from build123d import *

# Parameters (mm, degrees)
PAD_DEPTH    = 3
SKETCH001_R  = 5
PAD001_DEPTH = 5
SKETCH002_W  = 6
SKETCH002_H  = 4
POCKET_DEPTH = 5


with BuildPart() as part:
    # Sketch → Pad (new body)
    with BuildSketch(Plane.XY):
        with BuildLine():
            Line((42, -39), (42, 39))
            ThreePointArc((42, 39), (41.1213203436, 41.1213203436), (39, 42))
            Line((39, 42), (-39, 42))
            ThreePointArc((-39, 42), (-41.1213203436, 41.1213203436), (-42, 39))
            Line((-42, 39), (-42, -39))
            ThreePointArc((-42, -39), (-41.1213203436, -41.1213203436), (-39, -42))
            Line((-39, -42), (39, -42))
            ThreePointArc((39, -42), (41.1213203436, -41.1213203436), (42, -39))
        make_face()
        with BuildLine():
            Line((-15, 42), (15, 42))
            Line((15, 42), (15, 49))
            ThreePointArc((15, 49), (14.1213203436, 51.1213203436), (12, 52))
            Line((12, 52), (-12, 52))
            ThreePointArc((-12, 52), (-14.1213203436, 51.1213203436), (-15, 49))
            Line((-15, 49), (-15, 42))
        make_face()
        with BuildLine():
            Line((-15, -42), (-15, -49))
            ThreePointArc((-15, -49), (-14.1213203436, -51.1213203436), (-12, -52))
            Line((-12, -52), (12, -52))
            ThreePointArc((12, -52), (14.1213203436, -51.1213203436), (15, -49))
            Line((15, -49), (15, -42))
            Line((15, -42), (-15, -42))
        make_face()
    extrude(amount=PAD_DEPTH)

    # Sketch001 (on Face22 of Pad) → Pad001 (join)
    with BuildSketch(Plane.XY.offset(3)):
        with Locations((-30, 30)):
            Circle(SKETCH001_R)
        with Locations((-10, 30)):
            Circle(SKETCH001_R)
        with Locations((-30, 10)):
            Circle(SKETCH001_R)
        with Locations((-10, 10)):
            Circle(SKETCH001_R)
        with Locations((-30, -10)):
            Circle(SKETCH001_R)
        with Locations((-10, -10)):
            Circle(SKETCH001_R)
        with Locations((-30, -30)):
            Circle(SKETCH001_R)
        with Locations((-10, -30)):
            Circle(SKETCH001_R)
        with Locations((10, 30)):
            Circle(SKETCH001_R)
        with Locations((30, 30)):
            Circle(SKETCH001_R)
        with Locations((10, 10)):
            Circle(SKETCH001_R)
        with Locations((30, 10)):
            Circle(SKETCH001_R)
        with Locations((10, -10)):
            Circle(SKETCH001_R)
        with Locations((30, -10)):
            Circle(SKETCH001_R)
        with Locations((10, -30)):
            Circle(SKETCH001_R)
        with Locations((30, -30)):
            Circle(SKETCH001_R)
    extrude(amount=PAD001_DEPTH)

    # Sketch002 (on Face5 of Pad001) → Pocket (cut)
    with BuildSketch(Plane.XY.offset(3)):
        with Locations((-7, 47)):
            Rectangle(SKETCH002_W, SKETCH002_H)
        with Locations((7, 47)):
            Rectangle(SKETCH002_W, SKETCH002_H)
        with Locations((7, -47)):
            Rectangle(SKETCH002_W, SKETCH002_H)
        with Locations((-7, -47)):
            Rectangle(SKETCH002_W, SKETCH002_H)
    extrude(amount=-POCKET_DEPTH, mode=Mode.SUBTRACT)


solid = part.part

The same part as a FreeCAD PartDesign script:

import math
import FreeCAD as App
import Part
import Sketcher
from FreeCAD import Vector
Q = App.Units.Quantity


def add_polygon(sketch, points):
    """Adds a closed chain of lines whose ends are joined by coincident constraints."""
    first, n = sketch.GeometryCount, len(points)
    for a, b in zip(points, points[1:] + points[:1]):
        sketch.addGeometry(Part.LineSegment(App.Vector(*a, 0), App.Vector(*b, 0)), False)
    for i in range(n):
        sketch.addConstraint(Sketcher.Constraint("Coincident", first + i, 2, first + (i + 1) % n, 1))

doc = App.newDocument("Part")
params = doc.addObject("Spreadsheet::Sheet", "Params")
for row, (alias, value) in enumerate([
    ("sketch1_radius", "3 mm"),
    ("sketch1_width", "24 mm"),
    ("sketch1_height", "78 mm"),
    ("sketch1_height2", "7 mm"),
    ("pad1_length", "3 mm"),
    ("sketch2_diameter", "10 mm"),
    ("pad2_length", "5 mm"),
    ("sketch3_width", "6 mm"),
    ("sketch3_height", "4 mm"),
    ("pocket1_length", "5 mm"),
], start=1):
    params.set(f"A{row}", alias)
    params.set(f"B{row}", "=" + value)
    params.setAlias(f"B{row}", alias)

body = doc.addObject("PartDesign::Body", "Body")

# Sketch on XY plane
sketch1 = body.newObject("Sketcher::SketchObject", "Sketch")
sketch1.AttachmentSupport = (doc.getObject("XY_Plane"), [""])
sketch1.MapMode = "FlatFace"
sketch1.addGeometry([
    Part.LineSegment(Vector(42, -39, 0), Vector(42, 39, 0)),  # 0
    Part.ArcOfCircle(Part.Circle(Vector(39, 39, 0), Vector(0, 0, 1), 3), math.radians(0), math.radians(90)),  # 1
    Part.LineSegment(Vector(39, 42, 0), Vector(15, 42, 0)),  # 2
    Part.LineSegment(Vector(15, 42, 0), Vector(15, 49, 0)),  # 3
    Part.ArcOfCircle(Part.Circle(Vector(12, 49, 0), Vector(0, 0, 1), 3), math.radians(0), math.radians(90)),  # 4
    Part.LineSegment(Vector(12, 52, 0), Vector(-12, 52, 0)),  # 5
    Part.ArcOfCircle(Part.Circle(Vector(-12, 49, 0), Vector(0, 0, 1), 3), math.radians(90), math.radians(180)),  # 6
    Part.LineSegment(Vector(-15, 49, 0), Vector(-15, 42, 0)),  # 7
    Part.LineSegment(Vector(-15, 42, 0), Vector(-39, 42, 0)),  # 8
    Part.ArcOfCircle(Part.Circle(Vector(-39, 39, 0), Vector(0, 0, 1), 3), math.radians(90), math.radians(180)),  # 9
    Part.LineSegment(Vector(-42, 39, 0), Vector(-42, -39, 0)),  # 10
    Part.ArcOfCircle(Part.Circle(Vector(-39, -39, 0), Vector(0, 0, 1), 3), math.radians(180), math.radians(270)),  # 11
    Part.LineSegment(Vector(-39, -42, 0), Vector(-15, -42, 0)),  # 12
    Part.LineSegment(Vector(-15, -42, 0), Vector(-15, -49, 0)),  # 13
    Part.ArcOfCircle(Part.Circle(Vector(-12, -49, 0), Vector(0, 0, 1), 3), math.radians(180), math.radians(270)),  # 14
    Part.LineSegment(Vector(-12, -52, 0), Vector(12, -52, 0)),  # 15
    Part.ArcOfCircle(Part.Circle(Vector(12, -49, 0), Vector(0, 0, 1), 3), math.radians(-90), math.radians(0)),  # 16
    Part.LineSegment(Vector(15, -49, 0), Vector(15, -42, 0)),  # 17
    Part.LineSegment(Vector(15, -42, 0), Vector(39, -42, 0)),  # 18
    Part.ArcOfCircle(Part.Circle(Vector(39, -39, 0), Vector(0, 0, 1), 3), math.radians(-90), math.radians(0)),  # 19
], False)
sketch1.addConstraint([
    Sketcher.Constraint("Tangent", 0, 2, 1, 1),
    Sketcher.Constraint("Tangent", 1, 2, 2, 1),
    Sketcher.Constraint("Coincident", 2, 2, 3, 1),
    Sketcher.Constraint("Tangent", 3, 2, 4, 1),
    Sketcher.Constraint("Tangent", 4, 2, 5, 1),
    Sketcher.Constraint("Tangent", 5, 2, 6, 1),
    Sketcher.Constraint("Tangent", 6, 2, 7, 1),
    Sketcher.Constraint("Coincident", 7, 2, 8, 1),
    Sketcher.Constraint("Tangent", 8, 2, 9, 1),
    Sketcher.Constraint("Tangent", 9, 2, 10, 1),
    Sketcher.Constraint("Tangent", 10, 2, 11, 1),
    Sketcher.Constraint("Tangent", 11, 2, 12, 1),
    Sketcher.Constraint("Coincident", 12, 2, 13, 1),
    Sketcher.Constraint("Tangent", 13, 2, 14, 1),
    Sketcher.Constraint("Tangent", 14, 2, 15, 1),
    Sketcher.Constraint("Tangent", 15, 2, 16, 1),
    Sketcher.Constraint("Tangent", 16, 2, 17, 1),
    Sketcher.Constraint("Coincident", 17, 2, 18, 1),
    Sketcher.Constraint("Tangent", 18, 2, 19, 1),
    Sketcher.Constraint("Tangent", 19, 2, 0, 1),
    Sketcher.Constraint("Vertical", 0),
    Sketcher.Constraint("Horizontal", 2),
    Sketcher.Constraint("Vertical", 3),
    Sketcher.Constraint("Horizontal", 5),
    Sketcher.Constraint("Vertical", 7),
    Sketcher.Constraint("Horizontal", 8),
    Sketcher.Constraint("Vertical", 10),
    Sketcher.Constraint("Horizontal", 12),
    Sketcher.Constraint("Vertical", 13),
    Sketcher.Constraint("Horizontal", 15),
    Sketcher.Constraint("Vertical", 17),
    Sketcher.Constraint("Horizontal", 18),
    Sketcher.Constraint("Equal", 1, 4),
    Sketcher.Constraint("Equal", 4, 6),
    Sketcher.Constraint("Equal", 6, 9),
    Sketcher.Constraint("Equal", 9, 11),
    Sketcher.Constraint("Equal", 11, 14),
    Sketcher.Constraint("Equal", 14, 16),
    Sketcher.Constraint("Equal", 16, 19),
    Sketcher.Constraint("Symmetric", 1, 3, 11, 3, -1, 1),
    Sketcher.Constraint("Symmetric", 4, 3, 14, 3, -1, 1),
    Sketcher.Constraint("Symmetric", 7, 2, 17, 2, -1, 1),
    Sketcher.Constraint("Symmetric", 2, 2, 7, 2, -2),
    Sketcher.Constraint("Equal", 2, 5),
    Sketcher.Constraint("Radius", 1, Q("3 mm")),
    Sketcher.Constraint("DistanceX", 2, 2, 2, 1, Q("24 mm")),
    Sketcher.Constraint("DistanceY", 0, 1, 0, 2, Q("78 mm")),
    Sketcher.Constraint("DistanceY", 3, 1, 3, 2, Q("7 mm")),
])
sketch1.setExpression("Constraints[44]", "Params.sketch1_radius")
sketch1.setExpression("Constraints[45]", "Params.sketch1_width")
sketch1.setExpression("Constraints[46]", "Params.sketch1_height")
sketch1.setExpression("Constraints[47]", "Params.sketch1_height2")
pad1 = body.newObject("PartDesign::Pad", "Pad")
pad1.Profile = sketch1
pad1.setExpression("Length", "Params.pad1_length")

# Sketch on XY plane
sketch2 = body.newObject("Sketcher::SketchObject", "Sketch001")
sketch2.AttachmentSupport = (doc.getObject("XY_Plane"), [""])
sketch2.MapMode = "FlatFace"
sketch2.AttachmentOffset = App.Placement(Vector(0, 0, 3), App.Rotation())
sketch2.addGeometry([
    Part.Circle(Vector(-30, 30, 0), Vector(0, 0, 1), 5),  # 0
    Part.Circle(Vector(-10, 30, 0), Vector(0, 0, 1), 5),  # 1
    Part.Circle(Vector(-30, 10, 0), Vector(0, 0, 1), 5),  # 2
    Part.Circle(Vector(-10, 10, 0), Vector(0, 0, 1), 5),  # 3
    Part.Circle(Vector(-30, -10, 0), Vector(0, 0, 1), 5),  # 4
    Part.Circle(Vector(-10, -10, 0), Vector(0, 0, 1), 5),  # 5
    Part.Circle(Vector(-30, -30, 0), Vector(0, 0, 1), 5),  # 6
    Part.Circle(Vector(-10, -30, 0), Vector(0, 0, 1), 5),  # 7
    Part.Circle(Vector(10, 30, 0), Vector(0, 0, 1), 5),  # 8
    Part.Circle(Vector(30, 30, 0), Vector(0, 0, 1), 5),  # 9
    Part.Circle(Vector(10, 10, 0), Vector(0, 0, 1), 5),  # 10
    Part.Circle(Vector(30, 10, 0), Vector(0, 0, 1), 5),  # 11
    Part.Circle(Vector(10, -10, 0), Vector(0, 0, 1), 5),  # 12
    Part.Circle(Vector(30, -10, 0), Vector(0, 0, 1), 5),  # 13
    Part.Circle(Vector(10, -30, 0), Vector(0, 0, 1), 5),  # 14
    Part.Circle(Vector(30, -30, 0), Vector(0, 0, 1), 5),  # 15
], False)
sketch2.addConstraint([
    Sketcher.Constraint("Equal", 0, 1),
    Sketcher.Constraint("Equal", 1, 2),
    Sketcher.Constraint("Equal", 2, 3),
    Sketcher.Constraint("Equal", 3, 4),
    Sketcher.Constraint("Equal", 4, 5),
    Sketcher.Constraint("Equal", 5, 6),
    Sketcher.Constraint("Equal", 6, 7),
    Sketcher.Constraint("Equal", 7, 8),
    Sketcher.Constraint("Equal", 8, 9),
    Sketcher.Constraint("Equal", 9, 10),
    Sketcher.Constraint("Equal", 10, 11),
    Sketcher.Constraint("Equal", 11, 12),
    Sketcher.Constraint("Equal", 12, 13),
    Sketcher.Constraint("Equal", 13, 14),
    Sketcher.Constraint("Equal", 14, 15),
    Sketcher.Constraint("Symmetric", 7, 3, 8, 3, -1, 1),
    Sketcher.Constraint("Symmetric", 6, 3, 9, 3, -1, 1),
    Sketcher.Constraint("Symmetric", 5, 3, 10, 3, -1, 1),
    Sketcher.Constraint("Symmetric", 4, 3, 11, 3, -1, 1),
    Sketcher.Constraint("Symmetric", 3, 3, 12, 3, -1, 1),
    Sketcher.Constraint("Symmetric", 2, 3, 13, 3, -1, 1),
    Sketcher.Constraint("Symmetric", 1, 3, 14, 3, -1, 1),
    Sketcher.Constraint("Symmetric", 0, 3, 15, 3, -1, 1),
    Sketcher.Constraint("Symmetric", 1, 3, 8, 3, -2),
    Sketcher.Constraint("Symmetric", 0, 3, 9, 3, -2),
    Sketcher.Constraint("Symmetric", 3, 3, 10, 3, -2),
    Sketcher.Constraint("Symmetric", 2, 3, 11, 3, -2),
    Sketcher.Constraint("Horizontal", 0, 3, 1, 3),
    Sketcher.Constraint("Horizontal", 2, 3, 3, 3),
    Sketcher.Constraint("Vertical", 0, 3, 2, 3),
    Sketcher.Constraint("Vertical", 1, 3, 3, 3),
    Sketcher.Constraint("Diameter", 0, Q("10 mm")),
    Sketcher.Constraint("DistanceX", 0, 3, -1, 1, Q("30 mm")),
    Sketcher.Constraint("DistanceY", -1, 1, 0, 3, Q("30 mm")),
    Sketcher.Constraint("DistanceX", 1, 3, -1, 1, Q("10 mm")),
    Sketcher.Constraint("DistanceY", -1, 1, 2, 3, Q("10 mm")),
])
sketch2.setExpression("Constraints[31]", "Params.sketch2_diameter")
pad2 = body.newObject("PartDesign::Pad", "Pad001")
pad2.Profile = sketch2
pad2.setExpression("Length", "Params.pad2_length")

# Sketch on XY plane
sketch3 = body.newObject("Sketcher::SketchObject", "Sketch002")
sketch3.AttachmentSupport = (doc.getObject("XY_Plane"), [""])
sketch3.MapMode = "FlatFace"
sketch3.AttachmentOffset = App.Placement(Vector(0, 0, 3), App.Rotation())
add_polygon(sketch3, [(-10, 49), (-10, 45), (-4, 45), (-4, 49)])  # lines 0-3
add_polygon(sketch3, [(4, 49), (4, 45), (10, 45), (10, 49)])  # lines 4-7
add_polygon(sketch3, [(4, -45), (4, -49), (10, -49), (10, -45)])  # lines 8-11
add_polygon(sketch3, [(-10, -45), (-10, -49), (-4, -49), (-4, -45)])  # lines 12-15
sketch3.addConstraint([
    Sketcher.Constraint("Vertical", 0),
    Sketcher.Constraint("Horizontal", 1),
    Sketcher.Constraint("Vertical", 2),
    Sketcher.Constraint("Horizontal", 3),
    Sketcher.Constraint("Vertical", 4),
    Sketcher.Constraint("Horizontal", 5),
    Sketcher.Constraint("Vertical", 6),
    Sketcher.Constraint("Horizontal", 7),
    Sketcher.Constraint("Vertical", 8),
    Sketcher.Constraint("Horizontal", 9),
    Sketcher.Constraint("Vertical", 10),
    Sketcher.Constraint("Horizontal", 11),
    Sketcher.Constraint("Vertical", 12),
    Sketcher.Constraint("Horizontal", 13),
    Sketcher.Constraint("Vertical", 14),
    Sketcher.Constraint("Horizontal", 15),
    Sketcher.Constraint("Symmetric", 2, 2, 8, 2, -1, 1),
    Sketcher.Constraint("Symmetric", 0, 2, 10, 2, -1, 1),
    Sketcher.Constraint("Symmetric", 6, 2, 12, 2, -1, 1),
    Sketcher.Constraint("Symmetric", 4, 2, 14, 2, -1, 1),
    Sketcher.Constraint("Symmetric", 1, 2, 4, 2, -2),
    Sketcher.Constraint("Symmetric", 3, 2, 6, 2, -2),
    Sketcher.Constraint("DistanceX", 1, 1, 1, 2, Q("6 mm")),
    Sketcher.Constraint("DistanceY", 0, 2, 0, 1, Q("4 mm")),
    Sketcher.Constraint("DistanceX", 0, 2, -1, 1, Q("10 mm")),
    Sketcher.Constraint("DistanceY", -1, 1, 0, 2, Q("45 mm")),
])
sketch3.setExpression("Constraints[38]", "Params.sketch3_width")
sketch3.setExpression("Constraints[39]", "Params.sketch3_height")
pocket1 = body.newObject("PartDesign::Pocket", "Pocket")
pocket1.Profile = sketch3
pocket1.setExpression("Length", "Params.pocket1_length")

doc.recompute()
